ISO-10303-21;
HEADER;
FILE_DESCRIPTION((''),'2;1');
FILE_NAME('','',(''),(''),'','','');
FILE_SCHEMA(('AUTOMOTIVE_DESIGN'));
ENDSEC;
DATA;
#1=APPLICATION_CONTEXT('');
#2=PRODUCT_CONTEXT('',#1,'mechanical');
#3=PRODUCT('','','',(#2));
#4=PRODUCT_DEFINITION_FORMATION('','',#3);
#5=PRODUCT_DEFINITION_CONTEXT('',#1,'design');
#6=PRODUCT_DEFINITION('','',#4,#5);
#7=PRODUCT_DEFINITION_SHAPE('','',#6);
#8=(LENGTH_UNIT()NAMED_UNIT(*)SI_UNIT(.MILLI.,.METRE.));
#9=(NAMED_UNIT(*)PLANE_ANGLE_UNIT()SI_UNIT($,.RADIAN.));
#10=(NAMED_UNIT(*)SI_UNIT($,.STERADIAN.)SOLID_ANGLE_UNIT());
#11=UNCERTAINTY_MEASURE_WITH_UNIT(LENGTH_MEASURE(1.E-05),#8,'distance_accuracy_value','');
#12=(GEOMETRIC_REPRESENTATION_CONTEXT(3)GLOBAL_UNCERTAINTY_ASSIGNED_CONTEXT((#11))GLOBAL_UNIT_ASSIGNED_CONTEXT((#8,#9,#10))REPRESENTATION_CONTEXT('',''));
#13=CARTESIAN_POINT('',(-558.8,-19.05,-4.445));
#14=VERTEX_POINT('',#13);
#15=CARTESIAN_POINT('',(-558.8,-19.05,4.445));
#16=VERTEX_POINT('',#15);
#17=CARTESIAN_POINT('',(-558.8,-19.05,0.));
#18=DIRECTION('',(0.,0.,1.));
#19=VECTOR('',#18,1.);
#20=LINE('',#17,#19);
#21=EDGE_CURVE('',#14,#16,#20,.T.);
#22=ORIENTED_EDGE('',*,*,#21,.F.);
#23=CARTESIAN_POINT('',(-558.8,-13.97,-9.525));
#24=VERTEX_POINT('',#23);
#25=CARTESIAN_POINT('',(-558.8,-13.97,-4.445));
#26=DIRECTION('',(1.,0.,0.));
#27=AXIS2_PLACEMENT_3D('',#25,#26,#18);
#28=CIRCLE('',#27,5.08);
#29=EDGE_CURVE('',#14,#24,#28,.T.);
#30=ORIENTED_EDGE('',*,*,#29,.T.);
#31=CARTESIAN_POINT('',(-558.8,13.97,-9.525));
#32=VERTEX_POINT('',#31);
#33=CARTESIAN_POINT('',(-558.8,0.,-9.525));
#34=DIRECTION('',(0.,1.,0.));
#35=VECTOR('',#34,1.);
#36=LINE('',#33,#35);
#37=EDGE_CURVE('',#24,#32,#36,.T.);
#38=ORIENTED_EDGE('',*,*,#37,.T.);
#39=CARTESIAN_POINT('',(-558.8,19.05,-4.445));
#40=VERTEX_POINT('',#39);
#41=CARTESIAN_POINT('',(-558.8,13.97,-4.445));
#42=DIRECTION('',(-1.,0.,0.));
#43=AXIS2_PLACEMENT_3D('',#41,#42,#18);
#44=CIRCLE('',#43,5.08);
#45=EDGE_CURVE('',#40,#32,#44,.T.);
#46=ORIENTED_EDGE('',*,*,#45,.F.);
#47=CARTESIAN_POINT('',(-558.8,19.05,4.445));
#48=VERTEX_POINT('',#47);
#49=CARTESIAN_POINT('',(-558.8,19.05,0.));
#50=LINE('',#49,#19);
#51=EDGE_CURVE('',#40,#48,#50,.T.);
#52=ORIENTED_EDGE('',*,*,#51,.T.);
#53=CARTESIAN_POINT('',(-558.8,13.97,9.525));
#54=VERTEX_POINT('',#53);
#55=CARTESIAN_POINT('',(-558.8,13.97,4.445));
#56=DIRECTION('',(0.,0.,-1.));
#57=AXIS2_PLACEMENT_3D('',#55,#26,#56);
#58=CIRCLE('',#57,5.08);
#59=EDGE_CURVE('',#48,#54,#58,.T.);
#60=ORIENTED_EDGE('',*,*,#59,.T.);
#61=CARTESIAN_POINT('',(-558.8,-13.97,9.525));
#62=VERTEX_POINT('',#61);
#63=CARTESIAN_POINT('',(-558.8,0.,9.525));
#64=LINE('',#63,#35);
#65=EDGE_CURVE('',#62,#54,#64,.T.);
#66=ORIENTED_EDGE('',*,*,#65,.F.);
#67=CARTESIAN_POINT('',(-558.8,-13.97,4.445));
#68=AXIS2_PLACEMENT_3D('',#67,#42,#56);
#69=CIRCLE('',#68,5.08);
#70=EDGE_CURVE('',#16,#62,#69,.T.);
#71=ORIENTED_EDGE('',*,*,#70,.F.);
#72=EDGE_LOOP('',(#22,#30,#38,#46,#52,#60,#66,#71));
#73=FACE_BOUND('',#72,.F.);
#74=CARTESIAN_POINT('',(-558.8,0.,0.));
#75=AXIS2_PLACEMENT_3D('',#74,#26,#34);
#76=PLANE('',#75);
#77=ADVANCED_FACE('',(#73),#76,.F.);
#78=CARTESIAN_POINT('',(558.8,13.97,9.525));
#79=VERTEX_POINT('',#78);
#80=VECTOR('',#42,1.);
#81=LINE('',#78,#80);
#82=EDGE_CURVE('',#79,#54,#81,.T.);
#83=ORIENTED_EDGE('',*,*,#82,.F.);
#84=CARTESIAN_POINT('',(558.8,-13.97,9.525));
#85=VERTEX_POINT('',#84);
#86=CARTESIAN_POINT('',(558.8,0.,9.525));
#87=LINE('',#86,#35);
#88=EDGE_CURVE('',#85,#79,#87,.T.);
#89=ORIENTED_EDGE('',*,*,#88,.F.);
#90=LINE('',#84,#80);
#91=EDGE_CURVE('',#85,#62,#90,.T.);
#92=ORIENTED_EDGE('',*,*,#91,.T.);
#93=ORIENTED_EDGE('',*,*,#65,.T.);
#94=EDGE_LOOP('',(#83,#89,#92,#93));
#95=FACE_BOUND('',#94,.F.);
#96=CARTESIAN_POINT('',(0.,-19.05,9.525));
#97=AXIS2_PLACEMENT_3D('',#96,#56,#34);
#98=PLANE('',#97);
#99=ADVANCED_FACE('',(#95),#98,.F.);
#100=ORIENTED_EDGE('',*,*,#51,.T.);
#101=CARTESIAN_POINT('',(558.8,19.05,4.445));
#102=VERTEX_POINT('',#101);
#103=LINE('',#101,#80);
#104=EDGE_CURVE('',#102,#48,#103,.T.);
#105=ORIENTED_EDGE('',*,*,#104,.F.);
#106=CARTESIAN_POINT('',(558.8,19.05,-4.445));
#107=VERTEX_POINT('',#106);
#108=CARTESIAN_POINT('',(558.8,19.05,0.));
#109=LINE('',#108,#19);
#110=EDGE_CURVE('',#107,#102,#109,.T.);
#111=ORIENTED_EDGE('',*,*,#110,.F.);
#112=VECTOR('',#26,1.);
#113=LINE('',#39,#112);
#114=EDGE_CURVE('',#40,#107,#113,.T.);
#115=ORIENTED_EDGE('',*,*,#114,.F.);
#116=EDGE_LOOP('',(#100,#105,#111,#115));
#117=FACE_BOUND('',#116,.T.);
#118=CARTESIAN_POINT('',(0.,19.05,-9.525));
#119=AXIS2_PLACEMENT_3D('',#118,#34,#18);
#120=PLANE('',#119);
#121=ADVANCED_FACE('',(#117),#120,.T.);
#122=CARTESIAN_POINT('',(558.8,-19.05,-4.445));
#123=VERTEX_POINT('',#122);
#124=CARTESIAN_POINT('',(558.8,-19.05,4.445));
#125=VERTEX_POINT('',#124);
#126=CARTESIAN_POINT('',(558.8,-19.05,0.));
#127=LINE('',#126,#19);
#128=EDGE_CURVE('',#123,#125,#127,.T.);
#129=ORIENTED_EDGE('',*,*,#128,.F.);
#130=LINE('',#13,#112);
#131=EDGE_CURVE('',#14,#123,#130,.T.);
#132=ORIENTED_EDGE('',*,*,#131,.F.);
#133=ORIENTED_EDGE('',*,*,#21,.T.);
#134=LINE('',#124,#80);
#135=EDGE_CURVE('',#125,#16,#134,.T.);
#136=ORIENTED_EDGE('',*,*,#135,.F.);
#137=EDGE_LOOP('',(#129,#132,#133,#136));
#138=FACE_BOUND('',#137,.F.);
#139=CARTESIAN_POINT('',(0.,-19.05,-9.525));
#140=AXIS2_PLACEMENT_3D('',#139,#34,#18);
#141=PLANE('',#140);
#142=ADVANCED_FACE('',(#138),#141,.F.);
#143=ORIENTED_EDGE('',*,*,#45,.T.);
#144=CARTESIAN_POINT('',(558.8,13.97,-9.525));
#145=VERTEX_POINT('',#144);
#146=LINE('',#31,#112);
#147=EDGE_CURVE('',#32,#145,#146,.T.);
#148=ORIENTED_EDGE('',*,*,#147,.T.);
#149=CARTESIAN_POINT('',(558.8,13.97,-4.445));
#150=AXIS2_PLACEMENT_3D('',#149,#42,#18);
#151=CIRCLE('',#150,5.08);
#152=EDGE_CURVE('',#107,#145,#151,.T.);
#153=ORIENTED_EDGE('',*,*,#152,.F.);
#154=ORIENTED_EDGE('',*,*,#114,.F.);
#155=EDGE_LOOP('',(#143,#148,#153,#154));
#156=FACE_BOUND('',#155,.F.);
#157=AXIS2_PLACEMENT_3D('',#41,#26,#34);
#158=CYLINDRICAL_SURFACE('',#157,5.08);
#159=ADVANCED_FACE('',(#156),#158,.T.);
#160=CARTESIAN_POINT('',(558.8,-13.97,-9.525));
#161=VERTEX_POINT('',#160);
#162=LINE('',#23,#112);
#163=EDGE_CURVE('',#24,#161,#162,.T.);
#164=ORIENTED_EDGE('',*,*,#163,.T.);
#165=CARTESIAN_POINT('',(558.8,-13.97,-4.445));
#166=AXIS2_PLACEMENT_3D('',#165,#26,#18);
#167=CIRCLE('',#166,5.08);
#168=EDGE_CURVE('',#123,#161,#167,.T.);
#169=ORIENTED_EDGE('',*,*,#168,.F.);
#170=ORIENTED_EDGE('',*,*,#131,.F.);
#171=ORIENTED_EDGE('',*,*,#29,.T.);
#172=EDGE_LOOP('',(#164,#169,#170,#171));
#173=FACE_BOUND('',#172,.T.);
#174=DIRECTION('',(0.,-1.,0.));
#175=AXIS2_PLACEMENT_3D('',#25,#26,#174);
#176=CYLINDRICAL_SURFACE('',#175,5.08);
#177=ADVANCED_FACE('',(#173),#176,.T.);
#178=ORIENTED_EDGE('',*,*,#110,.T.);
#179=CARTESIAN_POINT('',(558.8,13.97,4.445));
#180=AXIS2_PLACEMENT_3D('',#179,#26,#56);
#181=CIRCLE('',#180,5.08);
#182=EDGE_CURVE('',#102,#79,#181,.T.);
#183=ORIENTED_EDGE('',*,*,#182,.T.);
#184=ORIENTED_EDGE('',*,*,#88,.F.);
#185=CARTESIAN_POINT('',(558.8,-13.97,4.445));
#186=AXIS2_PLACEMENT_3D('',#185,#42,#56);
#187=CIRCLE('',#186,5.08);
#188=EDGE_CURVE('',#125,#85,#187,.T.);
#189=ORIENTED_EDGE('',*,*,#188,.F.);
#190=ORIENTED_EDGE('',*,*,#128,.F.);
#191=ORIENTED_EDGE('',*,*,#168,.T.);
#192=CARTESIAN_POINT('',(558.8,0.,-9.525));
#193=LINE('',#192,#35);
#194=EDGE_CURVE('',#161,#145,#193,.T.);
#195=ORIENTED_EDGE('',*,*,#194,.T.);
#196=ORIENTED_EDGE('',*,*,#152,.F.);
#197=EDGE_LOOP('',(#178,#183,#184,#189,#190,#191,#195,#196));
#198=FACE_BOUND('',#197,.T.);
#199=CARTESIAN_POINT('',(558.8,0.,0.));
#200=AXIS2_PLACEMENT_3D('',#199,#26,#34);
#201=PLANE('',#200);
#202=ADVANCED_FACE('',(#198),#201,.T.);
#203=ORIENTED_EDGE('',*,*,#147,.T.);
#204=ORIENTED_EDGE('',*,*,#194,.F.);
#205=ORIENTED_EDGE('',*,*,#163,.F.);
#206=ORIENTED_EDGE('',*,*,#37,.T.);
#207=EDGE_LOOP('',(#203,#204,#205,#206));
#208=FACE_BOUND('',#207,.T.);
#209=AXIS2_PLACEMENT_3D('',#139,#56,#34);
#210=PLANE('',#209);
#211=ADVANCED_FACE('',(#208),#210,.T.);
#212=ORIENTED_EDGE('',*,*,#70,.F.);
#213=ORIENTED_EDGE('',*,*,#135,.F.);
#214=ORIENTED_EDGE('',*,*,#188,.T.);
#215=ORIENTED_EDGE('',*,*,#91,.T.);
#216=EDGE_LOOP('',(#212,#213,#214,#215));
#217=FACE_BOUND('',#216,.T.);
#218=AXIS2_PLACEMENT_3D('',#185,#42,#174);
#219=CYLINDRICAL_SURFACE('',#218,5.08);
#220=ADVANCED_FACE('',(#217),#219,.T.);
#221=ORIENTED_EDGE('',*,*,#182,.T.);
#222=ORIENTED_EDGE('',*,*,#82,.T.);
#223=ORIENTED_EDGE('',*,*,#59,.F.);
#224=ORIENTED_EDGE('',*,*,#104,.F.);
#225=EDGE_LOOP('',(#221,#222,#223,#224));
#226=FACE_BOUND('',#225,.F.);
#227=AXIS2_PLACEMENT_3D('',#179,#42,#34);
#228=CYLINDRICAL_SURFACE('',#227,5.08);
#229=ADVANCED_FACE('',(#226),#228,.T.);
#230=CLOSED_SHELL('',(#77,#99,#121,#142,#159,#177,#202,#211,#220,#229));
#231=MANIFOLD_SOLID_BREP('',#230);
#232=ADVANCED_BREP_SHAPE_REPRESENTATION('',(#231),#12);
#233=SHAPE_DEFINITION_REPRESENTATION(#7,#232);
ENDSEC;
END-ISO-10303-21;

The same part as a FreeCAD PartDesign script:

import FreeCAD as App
import Part
import Sketcher
from FreeCAD import Vector
Q = App.Units.Quantity


def edges_at(feature, points):
    """Names of the edges that pass closest to the given points."""
    edges = feature.Shape.Edges
    near = lambda p: min(range(len(edges)), key=lambda i: edges[i].distToShape(Part.Vertex(*p))[0])
    return sorted({f"Edge{near(p) + 1}" for p in points})

doc = App.newDocument("Part")
body = doc.addObject("PartDesign::Body", "Body")

sketch1 = doc.addObject("Sketcher::SketchObject", "Sketch")
body.addObject(sketch1)
sketch1.AttachmentSupport = (doc.YZ_Plane, [""])
sketch1.MapMode = "FlatFace"
sketch1.addGeometry([
    Part.LineSegment(Vector(-19.05, 9.525, 0), Vector(-19.05, -9.525, 0)),
    Part.LineSegment(Vector(-19.05, -9.525, 0), Vector(19.05, -9.525, 0)),
    Part.LineSegment(Vector(19.05, -9.525, 0), Vector(19.05, 9.525, 0)),
    Part.LineSegment(Vector(19.05, 9.525, 0), Vector(-19.05, 9.525, 0)),
], False)
sketch1.addConstraint([
    Sketcher.Constraint("Coincident", 0, 2, 1, 1),
    Sketcher.Constraint("Coincident", 1, 2, 2, 1),
    Sketcher.Constraint("Coincident", 2, 2, 3, 1),
    Sketcher.Constraint("Coincident", 3, 2, 0, 1),
    Sketcher.Constraint("Vertical", 0),
    Sketcher.Constraint("Horizontal", 1),
    Sketcher.Constraint("Vertical", 2),
    Sketcher.Constraint("Horizontal", 3),
    Sketcher.Constraint("Symmetric", 0, 2, 2, 2, -1, 1),
    Sketcher.Constraint("DistanceX", 1, 1, 1, 2, Q("1.5 in")),
    Sketcher.Constraint("DistanceY", 0, 2, 0, 1, Q("0.75 in")),
])
pad1 = doc.addObject("PartDesign::Pad", "Pad")
body.addObject(pad1)
pad1.Profile = sketch1
pad1.Length = Q("44 in")
pad1.Midplane = True
doc.recompute()

fillet = doc.addObject("PartDesign::Fillet", "Fillet")
body.addObject(fillet)
fillet.Base = (pad1, edges_at(pad1, [
    (0, -19.05, 9.525),
    (0, -19.05, -9.525),
    (0, 19.05, 9.525),
    (0, 19.05, -9.525),
]))
fillet.Radius = Q("0.2 in")

doc.recompute()
